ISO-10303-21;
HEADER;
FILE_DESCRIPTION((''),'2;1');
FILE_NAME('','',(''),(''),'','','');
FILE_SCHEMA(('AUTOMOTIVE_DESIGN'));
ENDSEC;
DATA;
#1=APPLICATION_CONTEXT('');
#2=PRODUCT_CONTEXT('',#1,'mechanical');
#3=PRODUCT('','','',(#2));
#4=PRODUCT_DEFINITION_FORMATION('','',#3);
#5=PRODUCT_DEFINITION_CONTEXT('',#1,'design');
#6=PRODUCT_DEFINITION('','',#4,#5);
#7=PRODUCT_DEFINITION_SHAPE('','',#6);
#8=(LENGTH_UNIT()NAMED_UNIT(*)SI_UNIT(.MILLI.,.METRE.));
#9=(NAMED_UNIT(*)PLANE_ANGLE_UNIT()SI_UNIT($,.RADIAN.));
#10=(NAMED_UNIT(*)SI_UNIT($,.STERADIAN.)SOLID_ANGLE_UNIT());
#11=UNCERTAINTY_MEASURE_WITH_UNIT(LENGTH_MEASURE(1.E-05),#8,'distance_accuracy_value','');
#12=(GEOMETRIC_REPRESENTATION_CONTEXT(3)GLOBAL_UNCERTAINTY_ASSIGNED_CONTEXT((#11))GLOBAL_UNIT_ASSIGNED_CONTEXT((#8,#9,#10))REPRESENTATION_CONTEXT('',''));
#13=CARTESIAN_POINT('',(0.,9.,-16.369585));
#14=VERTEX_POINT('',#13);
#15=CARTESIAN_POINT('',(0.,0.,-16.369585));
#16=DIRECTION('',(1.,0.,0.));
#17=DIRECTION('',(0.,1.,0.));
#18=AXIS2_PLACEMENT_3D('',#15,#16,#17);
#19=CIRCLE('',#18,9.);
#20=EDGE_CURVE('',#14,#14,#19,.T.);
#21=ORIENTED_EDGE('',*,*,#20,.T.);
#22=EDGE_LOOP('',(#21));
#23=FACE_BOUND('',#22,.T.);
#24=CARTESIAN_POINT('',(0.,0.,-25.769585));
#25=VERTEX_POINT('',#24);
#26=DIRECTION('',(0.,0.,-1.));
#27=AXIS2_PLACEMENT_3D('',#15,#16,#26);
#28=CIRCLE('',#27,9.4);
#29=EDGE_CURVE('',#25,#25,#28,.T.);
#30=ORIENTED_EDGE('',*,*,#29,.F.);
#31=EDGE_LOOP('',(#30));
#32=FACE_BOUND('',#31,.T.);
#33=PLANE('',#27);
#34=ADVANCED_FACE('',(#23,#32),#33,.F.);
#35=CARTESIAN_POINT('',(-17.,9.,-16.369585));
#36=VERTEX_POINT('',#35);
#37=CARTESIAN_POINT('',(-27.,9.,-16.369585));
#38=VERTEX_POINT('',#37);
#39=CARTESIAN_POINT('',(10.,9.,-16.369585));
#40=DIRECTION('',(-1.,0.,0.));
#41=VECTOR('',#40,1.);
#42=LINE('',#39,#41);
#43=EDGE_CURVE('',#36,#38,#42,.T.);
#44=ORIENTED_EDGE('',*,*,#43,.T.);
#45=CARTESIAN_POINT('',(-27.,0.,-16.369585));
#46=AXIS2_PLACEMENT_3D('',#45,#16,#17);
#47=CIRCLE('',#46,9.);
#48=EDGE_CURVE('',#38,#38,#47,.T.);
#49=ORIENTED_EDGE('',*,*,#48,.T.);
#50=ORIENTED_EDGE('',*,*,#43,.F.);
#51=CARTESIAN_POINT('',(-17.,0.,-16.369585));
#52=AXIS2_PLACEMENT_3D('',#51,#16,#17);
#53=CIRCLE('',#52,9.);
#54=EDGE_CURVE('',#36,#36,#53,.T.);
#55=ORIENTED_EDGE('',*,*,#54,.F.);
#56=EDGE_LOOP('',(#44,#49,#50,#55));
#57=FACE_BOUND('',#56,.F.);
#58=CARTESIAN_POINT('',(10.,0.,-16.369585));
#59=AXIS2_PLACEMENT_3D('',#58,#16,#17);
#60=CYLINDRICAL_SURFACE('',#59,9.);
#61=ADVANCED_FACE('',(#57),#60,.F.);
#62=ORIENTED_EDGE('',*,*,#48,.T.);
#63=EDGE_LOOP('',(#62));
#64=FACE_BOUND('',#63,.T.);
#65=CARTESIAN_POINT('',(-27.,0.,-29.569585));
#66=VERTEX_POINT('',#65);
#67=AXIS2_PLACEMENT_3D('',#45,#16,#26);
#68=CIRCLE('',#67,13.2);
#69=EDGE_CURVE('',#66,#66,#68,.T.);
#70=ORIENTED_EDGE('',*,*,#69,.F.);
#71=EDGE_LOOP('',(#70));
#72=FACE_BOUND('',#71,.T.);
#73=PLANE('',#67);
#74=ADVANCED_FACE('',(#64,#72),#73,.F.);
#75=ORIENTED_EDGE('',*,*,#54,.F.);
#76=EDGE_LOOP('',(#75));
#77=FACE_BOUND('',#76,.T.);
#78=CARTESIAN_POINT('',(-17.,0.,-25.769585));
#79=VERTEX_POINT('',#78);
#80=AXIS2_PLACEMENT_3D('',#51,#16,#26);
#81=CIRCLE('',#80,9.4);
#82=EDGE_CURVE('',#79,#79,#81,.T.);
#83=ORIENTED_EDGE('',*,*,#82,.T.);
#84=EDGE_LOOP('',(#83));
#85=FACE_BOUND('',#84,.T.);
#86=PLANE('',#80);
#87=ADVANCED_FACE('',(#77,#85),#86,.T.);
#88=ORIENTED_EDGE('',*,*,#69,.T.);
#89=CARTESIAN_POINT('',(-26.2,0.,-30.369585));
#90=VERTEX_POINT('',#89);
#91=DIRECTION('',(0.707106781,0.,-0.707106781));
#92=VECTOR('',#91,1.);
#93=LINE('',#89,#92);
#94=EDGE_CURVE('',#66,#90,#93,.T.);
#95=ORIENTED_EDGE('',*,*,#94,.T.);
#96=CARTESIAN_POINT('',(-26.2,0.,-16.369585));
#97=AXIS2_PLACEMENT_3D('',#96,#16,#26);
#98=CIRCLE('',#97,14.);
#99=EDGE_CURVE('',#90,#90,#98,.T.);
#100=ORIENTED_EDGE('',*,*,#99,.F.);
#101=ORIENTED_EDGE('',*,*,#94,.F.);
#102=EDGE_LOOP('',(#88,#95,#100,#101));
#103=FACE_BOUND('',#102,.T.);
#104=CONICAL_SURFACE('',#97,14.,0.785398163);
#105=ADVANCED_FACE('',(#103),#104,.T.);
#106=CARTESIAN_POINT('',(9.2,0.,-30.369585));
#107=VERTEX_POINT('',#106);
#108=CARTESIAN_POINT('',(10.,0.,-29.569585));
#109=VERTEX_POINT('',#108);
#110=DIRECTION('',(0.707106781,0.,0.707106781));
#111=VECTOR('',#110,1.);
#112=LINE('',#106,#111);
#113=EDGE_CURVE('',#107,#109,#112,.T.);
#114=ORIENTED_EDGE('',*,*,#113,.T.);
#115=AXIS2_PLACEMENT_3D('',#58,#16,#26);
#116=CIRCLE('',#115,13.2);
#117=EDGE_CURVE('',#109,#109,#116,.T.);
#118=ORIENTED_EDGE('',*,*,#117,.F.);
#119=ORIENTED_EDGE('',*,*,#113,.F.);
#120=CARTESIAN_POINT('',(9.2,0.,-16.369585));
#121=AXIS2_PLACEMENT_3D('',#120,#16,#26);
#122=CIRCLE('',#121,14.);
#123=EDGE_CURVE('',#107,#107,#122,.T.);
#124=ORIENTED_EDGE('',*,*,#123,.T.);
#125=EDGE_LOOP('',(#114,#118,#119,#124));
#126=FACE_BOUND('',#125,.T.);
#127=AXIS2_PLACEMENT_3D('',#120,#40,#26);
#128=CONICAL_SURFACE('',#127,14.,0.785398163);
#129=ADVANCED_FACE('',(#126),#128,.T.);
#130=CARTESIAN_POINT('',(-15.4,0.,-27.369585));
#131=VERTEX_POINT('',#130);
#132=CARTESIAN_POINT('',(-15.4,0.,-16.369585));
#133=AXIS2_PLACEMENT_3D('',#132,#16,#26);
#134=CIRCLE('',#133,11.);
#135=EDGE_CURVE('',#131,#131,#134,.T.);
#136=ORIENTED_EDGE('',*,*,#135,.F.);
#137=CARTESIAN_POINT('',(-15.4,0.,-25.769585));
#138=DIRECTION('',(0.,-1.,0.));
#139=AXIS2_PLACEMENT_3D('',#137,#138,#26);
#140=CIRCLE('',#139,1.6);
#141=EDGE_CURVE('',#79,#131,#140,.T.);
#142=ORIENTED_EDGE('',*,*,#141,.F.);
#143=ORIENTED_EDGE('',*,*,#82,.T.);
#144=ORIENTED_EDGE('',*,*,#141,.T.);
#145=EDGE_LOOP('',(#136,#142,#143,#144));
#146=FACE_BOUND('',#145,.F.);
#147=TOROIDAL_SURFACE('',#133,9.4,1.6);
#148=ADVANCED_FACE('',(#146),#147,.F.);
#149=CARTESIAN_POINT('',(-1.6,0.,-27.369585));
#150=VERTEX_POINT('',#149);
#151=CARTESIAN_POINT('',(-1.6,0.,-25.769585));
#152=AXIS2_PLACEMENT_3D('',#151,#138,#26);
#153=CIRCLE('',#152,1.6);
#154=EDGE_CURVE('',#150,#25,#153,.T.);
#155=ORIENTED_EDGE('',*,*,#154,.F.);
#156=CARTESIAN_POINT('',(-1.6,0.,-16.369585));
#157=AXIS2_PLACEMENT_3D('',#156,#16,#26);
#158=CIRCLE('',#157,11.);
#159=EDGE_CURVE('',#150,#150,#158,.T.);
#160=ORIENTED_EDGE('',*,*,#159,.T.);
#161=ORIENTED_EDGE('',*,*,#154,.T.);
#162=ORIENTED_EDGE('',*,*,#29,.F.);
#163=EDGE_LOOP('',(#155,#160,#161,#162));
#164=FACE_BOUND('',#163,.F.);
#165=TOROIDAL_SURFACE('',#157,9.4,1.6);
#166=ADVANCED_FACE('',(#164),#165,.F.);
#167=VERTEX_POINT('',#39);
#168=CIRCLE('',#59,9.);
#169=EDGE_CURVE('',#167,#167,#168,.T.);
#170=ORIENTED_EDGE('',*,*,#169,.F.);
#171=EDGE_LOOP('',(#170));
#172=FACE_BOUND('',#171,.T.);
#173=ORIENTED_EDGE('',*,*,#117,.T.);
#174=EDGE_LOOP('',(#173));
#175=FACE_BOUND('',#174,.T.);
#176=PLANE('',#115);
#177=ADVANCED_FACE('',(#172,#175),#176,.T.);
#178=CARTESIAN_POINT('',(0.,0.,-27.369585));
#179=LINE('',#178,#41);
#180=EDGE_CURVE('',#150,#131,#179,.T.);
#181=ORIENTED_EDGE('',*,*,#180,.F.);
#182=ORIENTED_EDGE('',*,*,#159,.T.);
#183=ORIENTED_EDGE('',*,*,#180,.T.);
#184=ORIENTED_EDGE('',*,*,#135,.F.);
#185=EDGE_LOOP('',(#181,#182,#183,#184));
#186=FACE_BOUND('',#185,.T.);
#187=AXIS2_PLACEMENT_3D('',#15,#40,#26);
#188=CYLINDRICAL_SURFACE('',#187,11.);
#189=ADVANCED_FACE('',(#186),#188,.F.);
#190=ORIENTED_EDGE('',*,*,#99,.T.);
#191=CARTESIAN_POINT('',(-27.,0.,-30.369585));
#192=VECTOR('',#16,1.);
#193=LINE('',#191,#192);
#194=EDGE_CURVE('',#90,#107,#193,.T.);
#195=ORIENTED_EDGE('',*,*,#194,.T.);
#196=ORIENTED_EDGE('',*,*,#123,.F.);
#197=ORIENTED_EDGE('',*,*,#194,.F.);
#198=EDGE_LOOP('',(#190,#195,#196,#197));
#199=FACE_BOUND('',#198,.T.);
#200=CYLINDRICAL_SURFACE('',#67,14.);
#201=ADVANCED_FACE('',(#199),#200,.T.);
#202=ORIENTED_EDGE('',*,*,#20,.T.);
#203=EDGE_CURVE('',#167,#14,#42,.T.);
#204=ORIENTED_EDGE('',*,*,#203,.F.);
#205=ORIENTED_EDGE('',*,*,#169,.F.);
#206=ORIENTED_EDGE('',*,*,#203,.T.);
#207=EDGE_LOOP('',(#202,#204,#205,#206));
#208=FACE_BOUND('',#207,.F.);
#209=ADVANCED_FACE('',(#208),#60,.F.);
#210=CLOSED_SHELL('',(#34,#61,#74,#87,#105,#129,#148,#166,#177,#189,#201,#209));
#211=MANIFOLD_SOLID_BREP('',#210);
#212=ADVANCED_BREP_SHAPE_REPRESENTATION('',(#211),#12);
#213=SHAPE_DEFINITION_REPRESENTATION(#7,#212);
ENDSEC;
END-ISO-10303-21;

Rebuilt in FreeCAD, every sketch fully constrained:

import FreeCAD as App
import Part
import Sketcher


def edges_at(feature, points):
    """Names of the edges that pass closest to the given points."""
    edges = feature.Shape.Edges
    near = lambda p: min(range(len(edges)), key=lambda i: edges[i].distToShape(Part.Vertex(*p))[0])
    return sorted({f"Edge{near(p) + 1}" for p in points})


def add_polygon(sketch, points):
    """Adds a closed chain of lines whose ends are joined by coincident constraints."""
    first, n = sketch.GeometryCount, len(points)
    for a, b in zip(points, points[1:] + points[:1]):
        sketch.addGeometry(Part.LineSegment(App.Vector(*a, 0), App.Vector(*b, 0)), False)
    for i in range(n):
        sketch.addConstraint(Sketcher.Constraint("Coincident", first + i, 2, first + (i + 1) % n, 1))

doc = App.newDocument("Part")
body = doc.addObject("PartDesign::Body", "Body")

# Sketch on XZ plane
sketch1 = doc.addObject("Sketcher::SketchObject", "Sketch")
body.addObject(sketch1)
sketch1.AttachmentSupport = (doc.XZ_Plane, [""])
sketch1.MapMode = "FlatFace"
add_polygon(sketch1, [(-17, -16), (-27, -16), (-27, -30), (10, -30), (10, -16), (0, -16), (0, -27), (-17, -27)])  # lines 0-7
sketch1.addGeometry(Part.LineSegment(App.Vector(-27, -16, 0), App.Vector(10, -16, 0)), True)  # axis
sketch1.addConstraint(Sketcher.Constraint("Horizontal", 0))
sketch1.addConstraint(Sketcher.Constraint("Vertical", 1))
sketch1.addConstraint(Sketcher.Constraint("Horizontal", 2))
sketch1.addConstraint(Sketcher.Constraint("Vertical", 3))
sketch1.addConstraint(Sketcher.Constraint("Horizontal", 4))
sketch1.addConstraint(Sketcher.Constraint("Vertical", 5))
sketch1.addConstraint(Sketcher.Constraint("Horizontal", 6))
sketch1.addConstraint(Sketcher.Constraint("Vertical", 7))
sketch1.addConstraint(Sketcher.Constraint("Horizontal", 8))
sketch1.addConstraint(Sketcher.Constraint("Coincident", 8, 1, 0, 2))
sketch1.addConstraint(Sketcher.Constraint("Coincident", 8, 2, 3, 2))
sketch1.addConstraint(Sketcher.Constraint("PointOnObject", 4, 2, -2))
sketch1.addConstraint(Sketcher.Constraint("Equal", 0, 4))
sketch1.addConstraint(Sketcher.Constraint("DistanceX", 0, 2, 0, 1, 10.0))
sketch1.addConstraint(Sketcher.Constraint("DistanceX", 2, 1, 2, 2, 37.0))
sketch1.addConstraint(Sketcher.Constraint("DistanceY", 1, 2, 1, 1, 14.0))
sketch1.addConstraint(Sketcher.Constraint("DistanceY", 5, 2, 5, 1, 11.0))
sketch1.addConstraint(Sketcher.Constraint("DistanceY", 0, 2, -1, 1, 16.369585))
revolution = doc.addObject("PartDesign::Revolution", "Revolution")
body.addObject(revolution)
revolution.Profile = sketch1
revolution.ReferenceAxis = (sketch1, ["Axis0"])
revolution.Angle = 360

# Sketch on YZ plane
sketch2 = doc.addObject("Sketcher::SketchObject", "Sketch001")
body.addObject(sketch2)
sketch2.AttachmentSupport = (doc.YZ_Plane, [""])
sketch2.MapMode = "FlatFace"
sketch2.AttachmentOffset = App.Placement(App.Vector(0, 0, 10), App.Rotation())
sketch2.addGeometry(Part.Circle(App.Vector(0, -16, 0), App.Vector(0, 0, 1), 9), False)
sketch2.addConstraint(Sketcher.Constraint("PointOnObject", 0, 3, -2))
sketch2.addConstraint(Sketcher.Constraint("Diameter", 0, 18.0))
sketch2.addConstraint(Sketcher.Constraint("DistanceY", 0, 3, -1, 1, 16.369585))
pocket1 = doc.addObject("PartDesign::Pocket", "Pocket")
body.addObject(pocket1)
pocket1.Profile = sketch2
pocket1.Length = 37
doc.recompute()

chamfer = doc.addObject("PartDesign::Chamfer", "Chamfer")
body.addObject(chamfer)
chamfer.Base = (pocket1, edges_at(pocket1, [(10, 0, -2.37), (-27, 0, -2.37)]))
chamfer.Size = 0.8
doc.recompute()

fillet = doc.addObject("PartDesign::Fillet", "Fillet")
body.addObject(fillet)
fillet.Base = (chamfer, edges_at(chamfer, [(-17, 0, -5.37), (0, 0, -5.37)]))
fillet.Radius = 1.6

doc.recompute()
